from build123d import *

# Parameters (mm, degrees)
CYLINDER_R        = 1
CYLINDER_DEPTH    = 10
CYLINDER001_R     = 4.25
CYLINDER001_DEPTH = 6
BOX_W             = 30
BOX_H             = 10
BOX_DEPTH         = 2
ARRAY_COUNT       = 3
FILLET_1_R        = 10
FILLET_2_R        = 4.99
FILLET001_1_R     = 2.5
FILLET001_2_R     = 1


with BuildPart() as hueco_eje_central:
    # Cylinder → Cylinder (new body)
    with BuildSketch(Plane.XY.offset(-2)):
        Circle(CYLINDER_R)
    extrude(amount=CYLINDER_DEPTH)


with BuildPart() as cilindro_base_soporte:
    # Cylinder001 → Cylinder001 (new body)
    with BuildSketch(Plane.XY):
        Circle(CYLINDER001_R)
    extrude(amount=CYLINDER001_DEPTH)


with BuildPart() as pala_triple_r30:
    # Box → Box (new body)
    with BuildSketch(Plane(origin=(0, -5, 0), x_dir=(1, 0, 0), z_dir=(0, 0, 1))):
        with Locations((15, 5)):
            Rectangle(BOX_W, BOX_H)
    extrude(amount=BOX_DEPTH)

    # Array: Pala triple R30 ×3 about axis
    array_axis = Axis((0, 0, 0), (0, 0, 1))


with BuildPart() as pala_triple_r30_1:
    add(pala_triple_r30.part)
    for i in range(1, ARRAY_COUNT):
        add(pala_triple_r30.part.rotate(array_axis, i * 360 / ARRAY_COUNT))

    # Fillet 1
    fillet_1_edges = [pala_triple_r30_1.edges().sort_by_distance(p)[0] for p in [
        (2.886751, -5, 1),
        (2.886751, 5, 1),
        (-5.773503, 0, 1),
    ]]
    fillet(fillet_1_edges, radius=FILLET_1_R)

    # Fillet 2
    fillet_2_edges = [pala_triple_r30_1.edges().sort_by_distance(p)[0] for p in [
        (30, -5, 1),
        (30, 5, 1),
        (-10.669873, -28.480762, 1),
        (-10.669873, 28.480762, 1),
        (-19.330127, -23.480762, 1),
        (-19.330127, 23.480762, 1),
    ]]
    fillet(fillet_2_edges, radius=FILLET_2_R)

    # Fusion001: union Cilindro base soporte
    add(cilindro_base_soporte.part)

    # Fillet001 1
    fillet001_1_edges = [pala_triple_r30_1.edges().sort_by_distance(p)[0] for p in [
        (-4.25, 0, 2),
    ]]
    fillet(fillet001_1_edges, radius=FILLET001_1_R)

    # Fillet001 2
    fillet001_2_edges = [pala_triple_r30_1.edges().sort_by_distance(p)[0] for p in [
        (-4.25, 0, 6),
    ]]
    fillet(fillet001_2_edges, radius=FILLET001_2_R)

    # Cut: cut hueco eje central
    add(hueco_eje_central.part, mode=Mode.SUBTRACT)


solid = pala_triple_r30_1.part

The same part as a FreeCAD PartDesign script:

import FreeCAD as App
import Part
import Sketcher


def edges_at(feature, points):
    """Names of the edges that pass closest to the given points."""
    edges = feature.Shape.Edges
    near = lambda p: min(range(len(edges)), key=lambda i: edges[i].distToShape(Part.Vertex(*p))[0])
    return sorted({f"Edge{near(p) + 1}" for p in points})


def add_polygon(sketch, points):
    """Adds a closed chain of lines whose ends are joined by coincident constraints."""
    first, n = sketch.GeometryCount, len(points)
    for a, b in zip(points, points[1:] + points[:1]):
        sketch.addGeometry(Part.LineSegment(App.Vector(*a, 0), App.Vector(*b, 0)), False)
    for i in range(n):
        sketch.addConstraint(Sketcher.Constraint("Coincident", first + i, 2, first + (i + 1) % n, 1))

doc = App.newDocument("Part")
body = doc.addObject("PartDesign::Body", "Body")

sketch1 = body.newObject("Sketcher::SketchObject", "Sketch")
sketch1.AttachmentSupport = (doc.getObject("XY_Plane"), [""])
sketch1.MapMode = "FlatFace"
sketch1.AttachmentOffset = App.Placement(App.Vector(0, 0, -2), App.Rotation())
sketch1.addGeometry(Part.Circle(App.Vector(0, 0, 0), App.Vector(0, 0, 1), 1), False)
sketch1.addConstraint([
    Sketcher.Constraint("Coincident", 0, 3, -1, 1),
    Sketcher.Constraint("Diameter", 0, 2.0),
])
pad1 = body.newObject("PartDesign::Pad", "Pad")
pad1.Profile = sketch1
pad1.Length = 10
body2 = doc.addObject("PartDesign::Body", "Body001")

sketch2 = body2.newObject("Sketcher::SketchObject", "Sketch001")
sketch2.AttachmentSupport = (doc.getObject("XY_Plane001"), [""])
sketch2.MapMode = "FlatFace"
sketch2.addGeometry(Part.Circle(App.Vector(0, 0, 0), App.Vector(0, 0, 1), 4.2), False)
sketch2.addConstraint([
    Sketcher.Constraint("Coincident", 0, 3, -1, 1),
    Sketcher.Constraint("Diameter", 0, 8.5),
])
pad2 = body2.newObject("PartDesign::Pad", "Pad001")
pad2.Profile = sketch2
pad2.Length = 6
body3 = doc.addObject("PartDesign::Body", "Body002")

sketch3 = body3.newObject("Sketcher::SketchObject", "Sketch002")
sketch3.AttachmentSupport = (doc.getObject("XY_Plane002"), [""])
sketch3.MapMode = "FlatFace"
add_polygon(sketch3, [(0, 5), (0, -5), (30, -5), (30, 5)])
sketch3.addConstraint([
    Sketcher.Constraint("Vertical", 0),
    Sketcher.Constraint("Horizontal", 1),
    Sketcher.Constraint("Vertical", 2),
    Sketcher.Constraint("Horizontal", 3),
    Sketcher.Constraint("Symmetric", 0, 2, 3, 2, -1, 1),
    Sketcher.Constraint("DistanceX", 1, 1, 1, 2, 30.0),
    Sketcher.Constraint("DistanceY", 0, 2, 0, 1, 10.0),
])
pad3 = body3.newObject("PartDesign::Pad", "Pad002")
pad3.Profile = sketch3
pad3.Length = 2
body4 = doc.addObject("PartDesign::Body", "Body003")
doc.recompute()

body4.BaseFeature = body3
doc.recompute()

body5 = doc.addObject("PartDesign::Body", "Body004")
body5.BaseFeature = body3
body5.Placement = App.Placement(App.Vector(0, 0, 0), App.Rotation(App.Vector(0, 0, 1), 120))
boolean = body4.newObject("PartDesign::Boolean", "Boolean")
boolean.Type = "Fuse"
boolean.addObjects([body5])
doc.recompute()

body3.Placement = App.Placement(App.Vector(0, 0, 0), App.Rotation(App.Vector(0, 0, 1), 240))
boolean2 = body4.newObject("PartDesign::Boolean", "Boolean001")
boolean2.Type = "Fuse"
boolean2.addObjects([body3])
doc.recompute()

fillet = body4.newObject("PartDesign::Fillet", "Fillet")
fillet.Base = (boolean2, edges_at(boolean2, [(2.887, -5, 1), (2.887, 5, 1), (-5.774, 0, 1)]))
fillet.Radius = 10
doc.recompute()

fillet2 = body4.newObject("PartDesign::Fillet", "Fillet001")
fillet2.Base = (fillet, edges_at(fillet, [
    (30, -5, 1),
    (30, 5, 1),
    (-10.67, -28.481, 1),
    (-10.67, 28.481, 1),
    (-19.33, -23.481, 1),
    (-19.33, 23.481, 1),
]))
fillet2.Radius = 4.99
doc.recompute()

boolean3 = body4.newObject("PartDesign::Boolean", "Boolean002")
boolean3.Type = "Fuse"
boolean3.addObjects([body2])
doc.recompute()

fillet3 = body4.newObject("PartDesign::Fillet", "Fillet002")
fillet3.Base = (boolean3, edges_at(boolean3, [(-4.25, 0, 2)]))
fillet3.Radius = 2.5
doc.recompute()

fillet4 = body4.newObject("PartDesign::Fillet", "Fillet003")
fillet4.Base = (fillet3, edges_at(fillet3, [(-4.25, 0, 6)]))
fillet4.Radius = 1
doc.recompute()

boolean4 = body4.newObject("PartDesign::Boolean", "Boolean003")
boolean4.Type = "Cut"
boolean4.addObjects([body])

doc.recompute()
